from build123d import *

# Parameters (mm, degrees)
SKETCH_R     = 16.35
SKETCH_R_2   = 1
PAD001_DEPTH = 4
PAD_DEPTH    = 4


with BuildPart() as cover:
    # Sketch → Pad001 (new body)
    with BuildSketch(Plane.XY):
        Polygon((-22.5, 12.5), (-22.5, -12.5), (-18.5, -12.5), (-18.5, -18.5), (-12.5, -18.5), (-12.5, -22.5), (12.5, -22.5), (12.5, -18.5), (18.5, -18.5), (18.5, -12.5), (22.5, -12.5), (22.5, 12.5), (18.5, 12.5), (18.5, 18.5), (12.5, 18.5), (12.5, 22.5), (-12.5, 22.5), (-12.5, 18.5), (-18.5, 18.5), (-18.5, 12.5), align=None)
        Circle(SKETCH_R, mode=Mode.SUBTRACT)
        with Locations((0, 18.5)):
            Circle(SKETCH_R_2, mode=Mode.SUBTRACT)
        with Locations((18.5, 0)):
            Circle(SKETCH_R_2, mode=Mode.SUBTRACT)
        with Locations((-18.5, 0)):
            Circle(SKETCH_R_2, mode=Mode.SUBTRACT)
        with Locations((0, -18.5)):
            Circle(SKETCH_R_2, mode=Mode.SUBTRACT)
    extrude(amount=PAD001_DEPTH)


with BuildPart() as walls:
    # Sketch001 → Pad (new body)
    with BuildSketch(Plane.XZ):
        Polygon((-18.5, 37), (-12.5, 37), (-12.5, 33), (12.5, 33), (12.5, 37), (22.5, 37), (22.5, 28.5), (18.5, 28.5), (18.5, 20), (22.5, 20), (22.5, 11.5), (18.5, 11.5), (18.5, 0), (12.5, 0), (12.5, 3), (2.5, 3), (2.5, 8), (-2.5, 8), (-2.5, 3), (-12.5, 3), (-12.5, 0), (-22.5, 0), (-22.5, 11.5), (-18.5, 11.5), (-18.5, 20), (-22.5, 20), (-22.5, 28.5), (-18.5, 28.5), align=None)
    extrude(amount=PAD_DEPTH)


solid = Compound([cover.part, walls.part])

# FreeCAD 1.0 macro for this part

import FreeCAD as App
import Part
import Sketcher

V = App.Vector

doc = App.newDocument("Part")
params = doc.addObject("Spreadsheet::Sheet", "Params")
for row, (alias, value) in enumerate([
    ("sketch1_diameter", "2 mm"),
    ("sketch1_diameter2", "32.7 mm"),
    ("sketch1_width", "4 mm"),
    ("sketch1_width2", "6 mm"),
    ("sketch1_width3", "25 mm"),
    ("pad1_length", "4 mm"),
    ("sketch2_width", "6 mm"),
    ("sketch2_width2", "4 mm"),
    ("sketch2_width3", "5 mm"),
    ("sketch2_height", "3 mm"),
    ("sketch2_height2", "8.5 mm"),
    ("pad2_length", "4 mm"),
], start=1):
    params.set(f"A{row}", alias)
    params.set(f"B{row}", "=" + value)
    params.setAlias(f"B{row}", alias)

body = doc.addObject("PartDesign::Body", "Body")

sketch1 = body.newObject("Sketcher::SketchObject", "Sketch")
sketch1.AttachmentSupport = (doc.getObject("XY_Plane"), [""])
sketch1.MapMode = "FlatFace"
sketch1.addGeometry(Part.LineSegment(V(-22.5, 12.5, 0), V(-22.5, -12.5, 0)), False)
sketch1.addGeometry(Part.LineSegment(V(-22.5, -12.5, 0), V(-18.5, -12.5, 0)), False)
sketch1.addGeometry(Part.LineSegment(V(-18.5, -12.5, 0), V(-18.5, -18.5, 0)), False)
sketch1.addGeometry(Part.LineSegment(V(-18.5, -18.5, 0), V(-12.5, -18.5, 0)), False)
sketch1.addGeometry(Part.LineSegment(V(-12.5, -18.5, 0), V(-12.5, -22.5, 0)), False)
sketch1.addGeometry(Part.LineSegment(V(-12.5, -22.5, 0), V(12.5, -22.5, 0)), False)
sketch1.addGeometry(Part.LineSegment(V(12.5, -22.5, 0), V(12.5, -18.5, 0)), False)
sketch1.addGeometry(Part.LineSegment(V(12.5, -18.5, 0), V(18.5, -18.5, 0)), False)
sketch1.addGeometry(Part.LineSegment(V(18.5, -18.5, 0), V(18.5, -12.5, 0)), False)
sketch1.addGeometry(Part.LineSegment(V(18.5, -12.5, 0), V(22.5, -12.5, 0)), False)
sketch1.addGeometry(Part.LineSegment(V(22.5, -12.5, 0), V(22.5, 12.5, 0)), False)
sketch1.addGeometry(Part.LineSegment(V(22.5, 12.5, 0), V(18.5, 12.5, 0)), False)
sketch1.addGeometry(Part.LineSegment(V(18.5, 12.5, 0), V(18.5, 18.5, 0)), False)
sketch1.addGeometry(Part.LineSegment(V(18.5, 18.5, 0), V(12.5, 18.5, 0)), False)
sketch1.addGeometry(Part.LineSegment(V(12.5, 18.5, 0), V(12.5, 22.5, 0)), False)
sketch1.addGeometry(Part.LineSegment(V(12.5, 22.5, 0), V(-12.5, 22.5, 0)), False)
sketch1.addGeometry(Part.LineSegment(V(-12.5, 22.5, 0), V(-12.5, 18.5, 0)), False)
sketch1.addGeometry(Part.LineSegment(V(-12.5, 18.5, 0), V(-18.5, 18.5, 0)), False)
sketch1.addGeometry(Part.LineSegment(V(-18.5, 18.5, 0), V(-18.5, 12.5, 0)), False)
sketch1.addGeometry(Part.LineSegment(V(-18.5, 12.5, 0), V(-22.5, 12.5, 0)), False)
sketch1.addGeometry(Part.Circle(V(0, -18.5, 0), V(0, 0, 1), 1), False)
sketch1.addGeometry(Part.Circle(V(-18.5, 0, 0), V(0, 0, 1), 1), False)
sketch1.addGeometry(Part.Circle(V(0, 0, 0), V(0, 0, 1), 16.4), False)
sketch1.addGeometry(Part.Circle(V(18.5, 0, 0), V(0, 0, 1), 1), False)
sketch1.addGeometry(Part.Circle(V(0, 18.5, 0), V(0, 0, 1), 1), False)
sketch1.addConstraint(Sketcher.Constraint("Coincident", 0, 2, 1, 1))
sketch1.addConstraint(Sketcher.Constraint("Coincident", 1, 2, 2, 1))
sketch1.addConstraint(Sketcher.Constraint("Coincident", 2, 2, 3, 1))
sketch1.addConstraint(Sketcher.Constraint("Coincident", 3, 2, 4, 1))
sketch1.addConstraint(Sketcher.Constraint("Coincident", 4, 2, 5, 1))
sketch1.addConstraint(Sketcher.Constraint("Coincident", 5, 2, 6, 1))
sketch1.addConstraint(Sketcher.Constraint("Coincident", 6, 2, 7, 1))
sketch1.addConstraint(Sketcher.Constraint("Coincident", 7, 2, 8, 1))
sketch1.addConstraint(Sketcher.Constraint("Coincident", 8, 2, 9, 1))
sketch1.addConstraint(Sketcher.Constraint("Coincident", 9, 2, 10, 1))
sketch1.addConstraint(Sketcher.Constraint("Coincident", 10, 2, 11, 1))
sketch1.addConstraint(Sketcher.Constraint("Coincident", 11, 2, 12, 1))
sketch1.addConstraint(Sketcher.Constraint("Coincident", 12, 2, 13, 1))
sketch1.addConstraint(Sketcher.Constraint("Coincident", 13, 2, 14, 1))
sketch1.addConstraint(Sketcher.Constraint("Coincident", 14, 2, 15, 1))
sketch1.addConstraint(Sketcher.Constraint("Coincident", 15, 2, 16, 1))
sketch1.addConstraint(Sketcher.Constraint("Coincident", 16, 2, 17, 1))
sketch1.addConstraint(Sketcher.Constraint("Coincident", 17, 2, 18, 1))
sketch1.addConstraint(Sketcher.Constraint("Coincident", 18, 2, 19, 1))
sketch1.addConstraint(Sketcher.Constraint("Coincident", 19, 2, 0, 1))
sketch1.addConstraint(Sketcher.Constraint("Vertical", 0))
sketch1.addConstraint(Sketcher.Constraint("Horizontal", 1))
sketch1.addConstraint(Sketcher.Constraint("Vertical", 2))
sketch1.addConstraint(Sketcher.Constraint("Horizontal", 3))
sketch1.addConstraint(Sketcher.Constraint("Vertical", 4))
sketch1.addConstraint(Sketcher.Constraint("Horizontal", 5))
sketch1.addConstraint(Sketcher.Constraint("Vertical", 6))
sketch1.addConstraint(Sketcher.Constraint("Horizontal", 7))
sketch1.addConstraint(Sketcher.Constraint("Vertical", 8))
sketch1.addConstraint(Sketcher.Constraint("Horizontal", 9))
sketch1.addConstraint(Sketcher.Constraint("Vertical", 10))
sketch1.addConstraint(Sketcher.Constraint("Horizontal", 11))
sketch1.addConstraint(Sketcher.Constraint("Vertical", 12))
sketch1.addConstraint(Sketcher.Constraint("Horizontal", 13))
sketch1.addConstraint(Sketcher.Constraint("Vertical", 14))
sketch1.addConstraint(Sketcher.Constraint("Horizontal", 15))
sketch1.addConstraint(Sketcher.Constraint("Vertical", 16))
sketch1.addConstraint(Sketcher.Constraint("Horizontal", 17))
sketch1.addConstraint(Sketcher.Constraint("Vertical", 18))
sketch1.addConstraint(Sketcher.Constraint("Horizontal", 19))
sketch1.addConstraint(Sketcher.Constraint("Coincident", 22, 3, -1, 1))
sketch1.addConstraint(Sketcher.Constraint("Equal", 20, 21))
sketch1.addConstraint(Sketcher.Constraint("Equal", 21, 23))
sketch1.addConstraint(Sketcher.Constraint("Equal", 23, 24))
sketch1.addConstraint(Sketcher.Constraint("Symmetric", 21, 3, 23, 3, -1, 1))
sketch1.addConstraint(Sketcher.Constraint("Symmetric", 20, 3, 24, 3, -1, 1))
sketch1.addConstraint(Sketcher.Constraint("Symmetric", 0, 2, 10, 2, -1, 1))
sketch1.addConstraint(Sketcher.Constraint("Symmetric", 2, 2, 12, 2, -1, 1))
sketch1.addConstraint(Sketcher.Constraint("Symmetric", 4, 2, 14, 2, -1, 1))
sketch1.addConstraint(Sketcher.Constraint("Symmetric", 6, 2, 16, 2, -1, 1))
sketch1.addConstraint(Sketcher.Constraint("Symmetric", 8, 2, 18, 2, -1, 1))
sketch1.addConstraint(Sketcher.Constraint("Symmetric", 3, 2, 6, 2, -2))
sketch1.addConstraint(Sketcher.Constraint("Symmetric", 1, 2, 8, 2, -2))
sketch1.addConstraint(Sketcher.Constraint("PointOnObject", 20, 3, -2))
sketch1.addConstraint(Sketcher.Constraint("PointOnObject", 21, 3, -1))
sketch1.addConstraint(Sketcher.Constraint("Horizontal", 20, 3, 2, 2))
sketch1.addConstraint(Sketcher.Constraint("Vertical", 21, 3, 1, 2))
sketch1.addConstraint(Sketcher.Constraint("Equal", 15, 0))
sketch1.addConstraint(Sketcher.Constraint("Equal", 17, 2))
sketch1.addConstraint(Sketcher.Constraint("Equal", 19, 4))
sketch1.addConstraint(Sketcher.Constraint("Diameter", 20, 2.0))
sketch1.addConstraint(Sketcher.Constraint("Diameter", 22, 32.7))
sketch1.addConstraint(Sketcher.Constraint("DistanceX", 1, 1, 1, 2, 4.0))
sketch1.addConstraint(Sketcher.Constraint("DistanceX", 3, 1, 3, 2, 6.0))
sketch1.addConstraint(Sketcher.Constraint("DistanceX", 5, 1, 5, 2, 25.0))
sketch1.setExpression("Constraints[60]", "Params.sketch1_diameter")
sketch1.setExpression("Constraints[61]", "Params.sketch1_diameter2")
sketch1.setExpression("Constraints[62]", "Params.sketch1_width")
sketch1.setExpression("Constraints[63]", "Params.sketch1_width2")
sketch1.setExpression("Constraints[64]", "Params.sketch1_width3")
pad1 = body.newObject("PartDesign::Pad", "Pad")
pad1.Profile = sketch1
pad1.setExpression("Length", "Params.pad1_length")
body2 = doc.addObject("PartDesign::Body", "Body001")

sketch2 = body2.newObject("Sketcher::SketchObject", "Sketch001")
sketch2.AttachmentSupport = (doc.getObject("XZ_Plane001"), [""])
sketch2.MapMode = "FlatFace"
sketch2.addGeometry(Part.LineSegment(V(-12.5, 37, 0), V(-18.5, 37, 0)), False)
sketch2.addGeometry(Part.LineSegment(V(-18.5, 37, 0), V(-18.5, 28.5, 0)), False)
sketch2.addGeometry(Part.LineSegment(V(-18.5, 28.5, 0), V(-22.5, 28.5, 0)), False)
sketch2.addGeometry(Part.LineSegment(V(-22.5, 28.5, 0), V(-22.5, 20, 0)), False)
sketch2.addGeometry(Part.LineSegment(V(-22.5, 20, 0), V(-18.5, 20, 0)), False)
sketch2.addGeometry(Part.LineSegment(V(-18.5, 20, 0), V(-18.5, 11.5, 0)), False)
sketch2.addGeometry(Part.LineSegment(V(-18.5, 11.5, 0), V(-22.5, 11.5, 0)), False)
sketch2.addGeometry(Part.LineSegment(V(-22.5, 11.5, 0), V(-22.5, 0, 0)), False)
sketch2.addGeometry(Part.LineSegment(V(-22.5, 0, 0), V(-12.5, 0, 0)), False)
sketch2.addGeometry(Part.LineSegment(V(-12.5, 0, 0), V(-12.5, 3, 0)), False)
sketch2.addGeometry(Part.LineSegment(V(-12.5, 3, 0), V(-2.5, 3, 0)), False)
sketch2.addGeometry(Part.LineSegment(V(-2.5, 3, 0), V(-2.5, 8, 0)), False)
sketch2.addGeometry(Part.LineSegment(V(-2.5, 8, 0), V(2.5, 8, 0)), False)
sketch2.addGeometry(Part.LineSegment(V(2.5, 8, 0), V(2.5, 3, 0)), False)
sketch2.addGeometry(Part.LineSegment(V(2.5, 3, 0), V(12.5, 3, 0)), False)
sketch2.addGeometry(Part.LineSegment(V(12.5, 3, 0), V(12.5, 0, 0)), False)
sketch2.addGeometry(Part.LineSegment(V(12.5, 0, 0), V(18.5, 0, 0)), False)
sketch2.addGeometry(Part.LineSegment(V(18.5, 0, 0), V(18.5, 11.5, 0)), False)
sketch2.addGeometry(Part.LineSegment(V(18.5, 11.5, 0), V(22.5, 11.5, 0)), False)
sketch2.addGeometry(Part.LineSegment(V(22.5, 11.5, 0), V(22.5, 20, 0)), False)
sketch2.addGeometry(Part.LineSegment(V(22.5, 20, 0), V(18.5, 20, 0)), False)
sketch2.addGeometry(Part.LineSegment(V(18.5, 20, 0), V(18.5, 28.5, 0)), False)
sketch2.addGeometry(Part.LineSegment(V(18.5, 28.5, 0), V(22.5, 28.5, 0)), False)
sketch2.addGeometry(Part.LineSegment(V(22.5, 28.5, 0), V(22.5, 37, 0)), False)
sketch2.addGeometry(Part.LineSegment(V(22.5, 37, 0), V(12.5, 37, 0)), False)
sketch2.addGeometry(Part.LineSegment(V(12.5, 37, 0), V(12.5, 33, 0)), False)
sketch2.addGeometry(Part.LineSegment(V(12.5, 33, 0), V(-12.5, 33, 0)), False)
sketch2.addGeometry(Part.LineSegment(V(-12.5, 33, 0), V(-12.5, 37, 0)), False)
sketch2.addConstraint(Sketcher.Constraint("Coincident", 0, 2, 1, 1))
sketch2.addConstraint(Sketcher.Constraint("Coincident", 1, 2, 2, 1))
sketch2.addConstraint(Sketcher.Constraint("Coincident", 2, 2, 3, 1))
sketch2.addConstraint(Sketcher.Constraint("Coincident", 3, 2, 4, 1))
sketch2.addConstraint(Sketcher.Constraint("Coincident", 4, 2, 5, 1))
sketch2.addConstraint(Sketcher.Constraint("Coincident", 5, 2, 6, 1))
sketch2.addConstraint(Sketcher.Constraint("Coincident", 6, 2, 7, 1))
sketch2.addConstraint(Sketcher.Constraint("Coincident", 7, 2, 8, 1))
sketch2.addConstraint(Sketcher.Constraint("Coincident", 8, 2, 9, 1))
sketch2.addConstraint(Sketcher.Constraint("Coincident", 9, 2, 10, 1))
sketch2.addConstraint(Sketcher.Constraint("Coincident", 10, 2, 11, 1))
sketch2.addConstraint(Sketcher.Constraint("Coincident", 11, 2, 12, 1))
sketch2.addConstraint(Sketcher.Constraint("Coincident", 12, 2, 13, 1))
sketch2.addConstraint(Sketcher.Constraint("Coincident", 13, 2, 14, 1))
sketch2.addConstraint(Sketcher.Constraint("Coincident", 14, 2, 15, 1))
sketch2.addConstraint(Sketcher.Constraint("Coincident", 15, 2, 16, 1))
sketch2.addConstraint(Sketcher.Constraint("Coincident", 16, 2, 17, 1))
sketch2.addConstraint(Sketcher.Constraint("Coincident", 17, 2, 18, 1))
sketch2.addConstraint(Sketcher.Constraint("Coincident", 18, 2, 19, 1))
sketch2.addConstraint(Sketcher.Constraint("Coincident", 19, 2, 20, 1))
sketch2.addConstraint(Sketcher.Constraint("Coincident", 20, 2, 21, 1))
sketch2.addConstraint(Sketcher.Constraint("Coincident", 21, 2, 22, 1))
sketch2.addConstraint(Sketcher.Constraint("Coincident", 22, 2, 23, 1))
sketch2.addConstraint(Sketcher.Constraint("Coincident", 23, 2, 24, 1))
sketch2.addConstraint(Sketcher.Constraint("Coincident", 24, 2, 25, 1))
sketch2.addConstraint(Sketcher.Constraint("Coincident", 25, 2, 26, 1))
sketch2.addConstraint(Sketcher.Constraint("Coincident", 26, 2, 27, 1))
sketch2.addConstraint(Sketcher.Constraint("Coincident", 27, 2, 0, 1))
sketch2.addConstraint(Sketcher.Constraint("Horizontal", 0))
sketch2.addConstraint(Sketcher.Constraint("Vertical", 1))
sketch2.addConstraint(Sketcher.Constraint("Horizontal", 2))
sketch2.addConstraint(Sketcher.Constraint("Vertical", 3))
sketch2.addConstraint(Sketcher.Constraint("Horizontal", 4))
sketch2.addConstraint(Sketcher.Constraint("Vertical", 5))
sketch2.addConstraint(Sketcher.Constraint("Horizontal", 6))
sketch2.addConstraint(Sketcher.Constraint("Vertical", 7))
sketch2.addConstraint(Sketcher.Constraint("Horizontal", 8))
sketch2.addConstraint(Sketcher.Constraint("Vertical", 9))
sketch2.addConstraint(Sketcher.Constraint("Horizontal", 10))
sketch2.addConstraint(Sketcher.Constraint("Vertical", 11))
sketch2.addConstraint(Sketcher.Constraint("Horizontal", 12))
sketch2.addConstraint(Sketcher.Constraint("Vertical", 13))
sketch2.addConstraint(Sketcher.Constraint("Horizontal", 14))
sketch2.addConstraint(Sketcher.Constraint("Vertical", 15))
sketch2.addConstraint(Sketcher.Constraint("Horizontal", 16))
sketch2.addConstraint(Sketcher.Constraint("Vertical", 17))
sketch2.addConstraint(Sketcher.Constraint("Horizontal", 18))
sketch2.addConstraint(Sketcher.Constraint("Vertical", 19))
sketch2.addConstraint(Sketcher.Constraint("Horizontal", 20))
sketch2.addConstraint(Sketcher.Constraint("Vertical", 21))
sketch2.addConstraint(Sketcher.Constraint("Horizontal", 22))
sketch2.addConstraint(Sketcher.Constraint("Vertical", 23))
sketch2.addConstraint(Sketcher.Constraint("Horizontal", 24))
sketch2.addConstraint(Sketcher.Constraint("Vertical", 25))
sketch2.addConstraint(Sketcher.Constraint("Horizontal", 26))
sketch2.addConstraint(Sketcher.Constraint("Vertical", 27))
sketch2.addConstraint(Sketcher.Constraint("Symmetric", 8, 2, 15, 2, -1, 1))
sketch2.addConstraint(Sketcher.Constraint("Symmetric", 10, 2, 13, 2, -2))
sketch2.addConstraint(Sketcher.Constraint("Symmetric", 5, 2, 17, 2, -2))
sketch2.addConstraint(Sketcher.Constraint("Symmetric", 3, 2, 19, 2, -2))
sketch2.addConstraint(Sketcher.Constraint("Symmetric", 1, 2, 21, 2, -2))
sketch2.addConstraint(Sketcher.Constraint("Symmetric", 24, 2, 27, 2, -2))
sketch2.addConstraint(Sketcher.Constraint("PointOnObject", 7, 2, -1))
sketch2.addConstraint(Sketcher.Constraint("Vertical", 1, 2, 4, 2))
sketch2.addConstraint(Sketcher.Constraint("Vertical", 3, 2, 6, 2))
sketch2.addConstraint(Sketcher.Constraint("Vertical", 19, 2, 22, 2))
sketch2.addConstraint(Sketcher.Constraint("Vertical", 15, 2, 24, 2))
sketch2.addConstraint(Sketcher.Constraint("Equal", 8, 10))
sketch2.addConstraint(Sketcher.Constraint("Equal", 1, 3))
sketch2.addConstraint(Sketcher.Constraint("Equal", 3, 5))
sketch2.addConstraint(Sketcher.Constraint("Equal", 12, 11))
sketch2.addConstraint(Sketcher.Constraint("Equal", 22, 25))
sketch2.addConstraint(Sketcher.Constraint("DistanceX", 0, 2, 0, 1, 6.0))
sketch2.addConstraint(Sketcher.Constraint("DistanceX", 2, 2, 2, 1, 4.0))
sketch2.addConstraint(Sketcher.Constraint("DistanceX", 12, 1, 12, 2, 5.0))
sketch2.addConstraint(Sketcher.Constraint("DistanceY", 9, 1, 9, 2, 3.0))
sketch2.addConstraint(Sketcher.Constraint("DistanceY", 1, 2, 1, 1, 8.5))
sketch2.addConstraint(Sketcher.Constraint("DistanceY", 7, 2, 7, 1, 11.5))
sketch2.setExpression("Constraints[72]", "Params.sketch2_width")
sketch2.setExpression("Constraints[73]", "Params.sketch2_width2")
sketch2.setExpression("Constraints[74]", "Params.sketch2_width3")
sketch2.setExpression("Constraints[75]", "Params.sketch2_height")
sketch2.setExpression("Constraints[76]", "Params.sketch2_height2")
pad2 = body2.newObject("PartDesign::Pad", "Pad001")
pad2.Profile = sketch2
pad2.setExpression("Length", "Params.pad2_length")

doc.recompute()
